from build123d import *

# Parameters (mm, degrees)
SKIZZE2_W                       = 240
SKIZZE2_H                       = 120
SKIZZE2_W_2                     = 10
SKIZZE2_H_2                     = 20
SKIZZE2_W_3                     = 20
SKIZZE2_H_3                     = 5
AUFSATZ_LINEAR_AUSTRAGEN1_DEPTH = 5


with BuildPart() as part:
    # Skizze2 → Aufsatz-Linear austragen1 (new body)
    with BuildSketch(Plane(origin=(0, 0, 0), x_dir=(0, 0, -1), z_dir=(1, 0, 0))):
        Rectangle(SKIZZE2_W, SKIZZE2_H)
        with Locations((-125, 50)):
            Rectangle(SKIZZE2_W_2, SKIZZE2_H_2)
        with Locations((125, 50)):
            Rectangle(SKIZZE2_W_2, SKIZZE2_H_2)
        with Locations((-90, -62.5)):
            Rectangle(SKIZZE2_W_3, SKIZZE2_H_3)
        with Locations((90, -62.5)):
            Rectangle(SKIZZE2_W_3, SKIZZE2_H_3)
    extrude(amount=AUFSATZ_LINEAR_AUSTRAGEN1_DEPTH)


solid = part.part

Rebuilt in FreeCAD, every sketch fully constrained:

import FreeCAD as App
import Part
import Sketcher

V = App.Vector

doc = App.newDocument("Part")
body = doc.addObject("PartDesign::Body", "Body")

sketch1 = body.newObject("Sketcher::SketchObject", "Sketch")
sketch1.AttachmentSupport = (doc.getObject("YZ_Plane"), [""])
sketch1.MapMode = "FlatFace"
sketch1.addGeometry([
    Part.LineSegment(V(40, 120, 0), V(-60, 120, 0)),
    Part.LineSegment(V(-60, 120, 0), V(-60, 100, 0)),
    Part.LineSegment(V(-60, 100, 0), V(-65, 100, 0)),
    Part.LineSegment(V(-65, 100, 0), V(-65, 80, 0)),
    Part.LineSegment(V(-65, 80, 0), V(-60, 80, 0)),
    Part.LineSegment(V(-60, 80, 0), V(-60, -80, 0)),
    Part.LineSegment(V(-60, -80, 0), V(-65, -80, 0)),
    Part.LineSegment(V(-65, -80, 0), V(-65, -100, 0)),
    Part.LineSegment(V(-65, -100, 0), V(-60, -100, 0)),
    Part.LineSegment(V(-60, -100, 0), V(-60, -120, 0)),
    Part.LineSegment(V(-60, -120, 0), V(40, -120, 0)),
    Part.LineSegment(V(40, -120, 0), V(40, -130, 0)),
    Part.LineSegment(V(40, -130, 0), V(60, -130, 0)),
    Part.LineSegment(V(60, -130, 0), V(60, 130, 0)),
    Part.LineSegment(V(60, 130, 0), V(40, 130, 0)),
    Part.LineSegment(V(40, 130, 0), V(40, 120, 0)),
], False)
sketch1.addConstraint([
    Sketcher.Constraint("Coincident", 0, 2, 1, 1),
    Sketcher.Constraint("Coincident", 1, 2, 2, 1),
    Sketcher.Constraint("Coincident", 2, 2, 3, 1),
    Sketcher.Constraint("Coincident", 3, 2, 4, 1),
    Sketcher.Constraint("Coincident", 4, 2, 5, 1),
    Sketcher.Constraint("Coincident", 5, 2, 6, 1),
    Sketcher.Constraint("Coincident", 6, 2, 7, 1),
    Sketcher.Constraint("Coincident", 7, 2, 8, 1),
    Sketcher.Constraint("Coincident", 8, 2, 9, 1),
    Sketcher.Constraint("Coincident", 9, 2, 10, 1),
    Sketcher.Constraint("Coincident", 10, 2, 11, 1),
    Sketcher.Constraint("Coincident", 11, 2, 12, 1),
    Sketcher.Constraint("Coincident", 12, 2, 13, 1),
    Sketcher.Constraint("Coincident", 13, 2, 14, 1),
    Sketcher.Constraint("Coincident", 14, 2, 15, 1),
    Sketcher.Constraint("Coincident", 15, 2, 0, 1),
    Sketcher.Constraint("Horizontal", 0),
    Sketcher.Constraint("Vertical", 1),
    Sketcher.Constraint("Horizontal", 2),
    Sketcher.Constraint("Vertical", 3),
    Sketcher.Constraint("Horizontal", 4),
    Sketcher.Constraint("Vertical", 5),
    Sketcher.Constraint("Horizontal", 6),
    Sketcher.Constraint("Vertical", 7),
    Sketcher.Constraint("Horizontal", 8),
    Sketcher.Constraint("Vertical", 9),
    Sketcher.Constraint("Horizontal", 10),
    Sketcher.Constraint("Vertical", 11),
    Sketcher.Constraint("Horizontal", 12),
    Sketcher.Constraint("Vertical", 13),
    Sketcher.Constraint("Horizontal", 14),
    Sketcher.Constraint("Vertical", 15),
    Sketcher.Constraint("Symmetric", 3, 2, 6, 2, -1),
    Sketcher.Constraint("Symmetric", 1, 2, 8, 2, -1),
    Sketcher.Constraint("Symmetric", 11, 2, 14, 2, -1),
    Sketcher.Constraint("Vertical", 1, 2, 4, 2),
    Sketcher.Constraint("Equal", 14, 1),
    Sketcher.Constraint("Equal", 1, 3),
    Sketcher.Constraint("Equal", 7, 9),
    Sketcher.Constraint("DistanceX", 0, 2, 0, 1, 100.0),
    Sketcher.Constraint("DistanceX", 2, 2, 2, 1, 5.0),
    Sketcher.Constraint("DistanceX", 12, 1, 12, 2, 20.0),
    Sketcher.Constraint("DistanceY", 5, 2, 5, 1, 160.0),
    Sketcher.Constraint("DistanceY", 11, 2, 11, 1, 10.0),
    Sketcher.Constraint("DistanceX", 0, 2, -1, 1, 60.0),
])
pad1 = body.newObject("PartDesign::Pad", "Pad")
pad1.Profile = sketch1
pad1.Length = 5

doc.recompute()
